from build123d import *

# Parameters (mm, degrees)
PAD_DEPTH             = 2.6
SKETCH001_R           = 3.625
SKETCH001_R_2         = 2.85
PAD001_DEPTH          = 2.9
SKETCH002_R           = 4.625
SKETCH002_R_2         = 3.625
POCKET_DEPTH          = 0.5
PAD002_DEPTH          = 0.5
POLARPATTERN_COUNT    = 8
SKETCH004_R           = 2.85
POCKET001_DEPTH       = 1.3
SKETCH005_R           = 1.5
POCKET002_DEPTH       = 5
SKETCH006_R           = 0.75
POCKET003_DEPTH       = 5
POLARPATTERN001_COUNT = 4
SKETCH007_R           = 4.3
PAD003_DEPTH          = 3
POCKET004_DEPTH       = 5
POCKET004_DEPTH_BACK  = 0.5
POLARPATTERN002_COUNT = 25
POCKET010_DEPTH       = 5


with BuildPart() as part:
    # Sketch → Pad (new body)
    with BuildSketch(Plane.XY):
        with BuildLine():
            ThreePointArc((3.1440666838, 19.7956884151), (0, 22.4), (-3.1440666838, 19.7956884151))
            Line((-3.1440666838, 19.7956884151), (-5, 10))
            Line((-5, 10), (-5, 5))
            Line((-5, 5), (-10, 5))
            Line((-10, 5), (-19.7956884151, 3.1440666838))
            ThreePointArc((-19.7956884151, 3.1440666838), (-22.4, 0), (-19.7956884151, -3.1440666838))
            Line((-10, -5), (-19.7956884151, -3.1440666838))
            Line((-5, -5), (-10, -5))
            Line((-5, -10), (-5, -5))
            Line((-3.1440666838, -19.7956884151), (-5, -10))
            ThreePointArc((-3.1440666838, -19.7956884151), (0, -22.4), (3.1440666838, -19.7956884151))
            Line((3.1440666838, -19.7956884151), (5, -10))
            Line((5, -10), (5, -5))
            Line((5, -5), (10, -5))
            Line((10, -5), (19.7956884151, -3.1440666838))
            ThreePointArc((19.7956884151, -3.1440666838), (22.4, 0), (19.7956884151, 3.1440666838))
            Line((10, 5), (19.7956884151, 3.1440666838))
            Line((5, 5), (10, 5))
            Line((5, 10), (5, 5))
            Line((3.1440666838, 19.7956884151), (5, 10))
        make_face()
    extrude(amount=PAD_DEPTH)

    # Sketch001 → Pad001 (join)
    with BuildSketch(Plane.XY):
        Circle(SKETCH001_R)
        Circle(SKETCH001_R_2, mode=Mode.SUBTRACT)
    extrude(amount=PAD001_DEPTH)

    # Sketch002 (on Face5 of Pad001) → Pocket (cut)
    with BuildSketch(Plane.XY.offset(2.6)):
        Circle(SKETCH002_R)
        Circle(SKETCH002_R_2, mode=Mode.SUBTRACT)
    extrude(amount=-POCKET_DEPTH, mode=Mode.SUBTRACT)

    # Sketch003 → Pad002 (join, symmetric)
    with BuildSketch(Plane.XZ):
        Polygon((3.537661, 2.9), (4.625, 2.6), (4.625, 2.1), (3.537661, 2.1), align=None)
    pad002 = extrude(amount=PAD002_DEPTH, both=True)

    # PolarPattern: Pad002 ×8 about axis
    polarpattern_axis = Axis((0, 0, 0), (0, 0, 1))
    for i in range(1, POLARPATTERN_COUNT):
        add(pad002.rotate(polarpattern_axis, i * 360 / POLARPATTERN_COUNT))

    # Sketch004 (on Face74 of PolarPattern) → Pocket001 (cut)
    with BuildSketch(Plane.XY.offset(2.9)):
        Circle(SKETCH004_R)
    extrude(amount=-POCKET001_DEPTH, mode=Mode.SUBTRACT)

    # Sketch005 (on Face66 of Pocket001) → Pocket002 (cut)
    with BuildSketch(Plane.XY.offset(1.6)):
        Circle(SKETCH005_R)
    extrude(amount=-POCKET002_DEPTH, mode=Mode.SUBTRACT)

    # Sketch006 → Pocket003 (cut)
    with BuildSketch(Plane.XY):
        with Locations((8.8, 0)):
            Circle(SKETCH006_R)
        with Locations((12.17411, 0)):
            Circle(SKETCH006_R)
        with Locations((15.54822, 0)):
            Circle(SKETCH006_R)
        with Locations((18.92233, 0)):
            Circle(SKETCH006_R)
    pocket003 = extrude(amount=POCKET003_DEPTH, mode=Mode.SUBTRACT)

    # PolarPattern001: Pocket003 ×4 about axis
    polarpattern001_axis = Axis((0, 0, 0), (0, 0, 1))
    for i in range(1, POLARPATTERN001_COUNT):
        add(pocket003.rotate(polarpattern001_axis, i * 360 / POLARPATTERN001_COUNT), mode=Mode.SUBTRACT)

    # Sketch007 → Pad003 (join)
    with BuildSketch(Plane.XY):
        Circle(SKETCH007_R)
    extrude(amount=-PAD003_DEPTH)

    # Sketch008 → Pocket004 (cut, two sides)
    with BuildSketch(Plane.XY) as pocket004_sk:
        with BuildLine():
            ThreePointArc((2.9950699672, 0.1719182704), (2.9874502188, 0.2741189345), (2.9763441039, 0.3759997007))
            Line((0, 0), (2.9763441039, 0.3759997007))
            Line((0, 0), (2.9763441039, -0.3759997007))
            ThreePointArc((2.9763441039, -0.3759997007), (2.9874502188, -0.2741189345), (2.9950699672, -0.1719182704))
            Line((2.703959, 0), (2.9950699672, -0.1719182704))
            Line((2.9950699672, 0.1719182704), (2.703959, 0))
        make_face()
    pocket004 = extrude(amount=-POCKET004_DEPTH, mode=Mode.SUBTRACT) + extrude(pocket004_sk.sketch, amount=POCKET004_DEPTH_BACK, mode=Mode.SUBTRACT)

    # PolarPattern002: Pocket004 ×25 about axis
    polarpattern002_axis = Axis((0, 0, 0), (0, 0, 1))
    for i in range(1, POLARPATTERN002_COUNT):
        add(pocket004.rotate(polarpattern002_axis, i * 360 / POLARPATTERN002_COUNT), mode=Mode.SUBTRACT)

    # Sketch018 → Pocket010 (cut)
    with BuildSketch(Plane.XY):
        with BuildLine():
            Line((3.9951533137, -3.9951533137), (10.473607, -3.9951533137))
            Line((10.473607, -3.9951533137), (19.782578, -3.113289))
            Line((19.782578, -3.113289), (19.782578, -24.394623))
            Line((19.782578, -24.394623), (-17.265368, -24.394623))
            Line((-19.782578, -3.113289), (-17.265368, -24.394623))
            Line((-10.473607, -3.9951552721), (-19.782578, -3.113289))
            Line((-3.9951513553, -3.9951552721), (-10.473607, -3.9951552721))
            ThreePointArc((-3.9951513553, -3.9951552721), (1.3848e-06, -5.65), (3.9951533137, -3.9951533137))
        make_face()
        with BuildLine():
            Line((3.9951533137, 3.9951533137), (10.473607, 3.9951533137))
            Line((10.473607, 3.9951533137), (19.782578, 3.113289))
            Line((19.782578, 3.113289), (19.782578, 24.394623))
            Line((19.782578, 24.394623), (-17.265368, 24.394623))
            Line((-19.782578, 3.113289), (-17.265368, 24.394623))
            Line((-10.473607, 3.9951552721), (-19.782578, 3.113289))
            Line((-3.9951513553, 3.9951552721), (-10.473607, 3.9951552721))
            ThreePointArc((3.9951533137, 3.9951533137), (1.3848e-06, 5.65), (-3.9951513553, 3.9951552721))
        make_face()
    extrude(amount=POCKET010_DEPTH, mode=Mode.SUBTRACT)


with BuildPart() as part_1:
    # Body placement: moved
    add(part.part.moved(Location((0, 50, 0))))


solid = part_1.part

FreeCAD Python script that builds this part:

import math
import FreeCAD as App
import Part
import Sketcher
from FreeCAD import Vector
Q = App.Units.Quantity

doc = App.newDocument("Part")
params = doc.addObject("Spreadsheet::Sheet", "Params")
for row, (alias, value) in enumerate([
    ("sketch1_radius", "3.2 mm"),
    ("sketch1_width", "5 mm"),
    ("pad1_length", "2.6 mm"),
    ("sketch2_diameter", "5.7 mm"),
    ("sketch2_diameter2", "7.25 mm"),
    ("pad2_length", "2.9 mm"),
    ("sketch3_diameter", "9.25 mm"),
    ("sketch3_diameter2", "7.25 mm"),
    ("pocket1_length", "0.5 mm"),
    ("sketch4_height", "0.8 mm"),
    ("sketch4_height2", "0.5 mm"),
    ("pad3_length", "1 mm"),
    ("sketch5_diameter", "5.7 mm"),
    ("pocket2_length", "1.3 mm"),
    ("sketch6_diameter", "3 mm"),
    ("pocket3_length", "5 mm"),
    ("sketch7_diameter", "1.5 mm"),
    ("pocket4_length", "5 mm"),
    ("sketch8_diameter", "8.6 mm"),
    ("pad4_length", "3 mm"),
    ("sketch9_radius", "3 mm"),
    ("pocket5_length", "5 mm"),
    ("pocket5_length2", "0.5 mm"),
    ("sketch10_radius", "5.65 mm"),
    ("pocket6_length", "5 mm"),
], start=1):
    params.set(f"A{row}", alias)
    params.set(f"B{row}", "=" + value)
    params.setAlias(f"B{row}", alias)

body = doc.addObject("PartDesign::Body", "Body")

# Sketch on XY plane
sketch1 = body.newObject("Sketcher::SketchObject", "Sketch")
sketch1.AttachmentSupport = (doc.getObject("XY_Plane"), [""])
sketch1.MapMode = "FlatFace"
sketch1.addGeometry([
    Part.ArcOfCircle(Part.Circle(Vector(0, 19.2, 0), Vector(0, 0, 1), 3.2), math.radians(10.728341), math.radians(169.271659)),  # 0
    Part.LineSegment(Vector(-3.144067, 19.795688, 0), Vector(-5, 10, 0)),  # 1
    Part.LineSegment(Vector(-5, 10, 0), Vector(-5, 5, 0)),  # 2
    Part.LineSegment(Vector(-5, 5, 0), Vector(-10, 5, 0)),  # 3
    Part.LineSegment(Vector(-10, 5, 0), Vector(-19.795688, 3.144067, 0)),  # 4
    Part.ArcOfCircle(Part.Circle(Vector(-19.2, 0, 0), Vector(0, 0, 1), 3.2), math.radians(100.728341), math.radians(259.271659)),  # 5
    Part.LineSegment(Vector(-19.795688, -3.144067, 0), Vector(-10, -5, 0)),  # 6
    Part.LineSegment(Vector(-10, -5, 0), Vector(-5, -5, 0)),  # 7
    Part.LineSegment(Vector(-5, -5, 0), Vector(-5, -10, 0)),  # 8
    Part.LineSegment(Vector(-5, -10, 0), Vector(-3.144067, -19.795688, 0)),  # 9
    Part.ArcOfCircle(Part.Circle(Vector(0, -19.2, 0), Vector(0, 0, 1), 3.2), math.radians(-169.271659), math.radians(-10.728341)),  # 10
    Part.LineSegment(Vector(3.144067, -19.795688, 0), Vector(5, -10, 0)),  # 11
    Part.LineSegment(Vector(5, -10, 0), Vector(5, -5, 0)),  # 12
    Part.LineSegment(Vector(5, -5, 0), Vector(10, -5, 0)),  # 13
    Part.LineSegment(Vector(10, -5, 0), Vector(19.795688, -3.144067, 0)),  # 14
    Part.ArcOfCircle(Part.Circle(Vector(19.2, 0, 0), Vector(0, 0, 1), 3.2), math.radians(-79.271659), math.radians(79.271659)),  # 15
    Part.LineSegment(Vector(19.795688, 3.144067, 0), Vector(10, 5, 0)),  # 16
    Part.LineSegment(Vector(10, 5, 0), Vector(5, 5, 0)),  # 17
    Part.LineSegment(Vector(5, 5, 0), Vector(5, 10, 0)),  # 18
    Part.LineSegment(Vector(5, 10, 0), Vector(3.144067, 19.795688, 0)),  # 19
], False)
sketch1.addConstraint([
    Sketcher.Constraint("Tangent", 0, 2, 1, 1),
    Sketcher.Constraint("Coincident", 1, 2, 2, 1),
    Sketcher.Constraint("Coincident", 2, 2, 3, 1),
    Sketcher.Constraint("Coincident", 3, 2, 4, 1),
    Sketcher.Constraint("Tangent", 4, 2, 5, 1),
    Sketcher.Constraint("Tangent", 5, 2, 6, 1),
    Sketcher.Constraint("Coincident", 6, 2, 7, 1),
    Sketcher.Constraint("Coincident", 7, 2, 8, 1),
    Sketcher.Constraint("Coincident", 8, 2, 9, 1),
    Sketcher.Constraint("Tangent", 9, 2, 10, 1),
    Sketcher.Constraint("Tangent", 10, 2, 11, 1),
    Sketcher.Constraint("Coincident", 11, 2, 12, 1),
    Sketcher.Constraint("Coincident", 12, 2, 13, 1),
    Sketcher.Constraint("Coincident", 13, 2, 14, 1),
    Sketcher.Constraint("Tangent", 14, 2, 15, 1),
    Sketcher.Constraint("Tangent", 15, 2, 16, 1),
    Sketcher.Constraint("Coincident", 16, 2, 17, 1),
    Sketcher.Constraint("Coincident", 17, 2, 18, 1),
    Sketcher.Constraint("Coincident", 18, 2, 19, 1),
    Sketcher.Constraint("Tangent", 19, 2, 0, 1),
    Sketcher.Constraint("Vertical", 2),
    Sketcher.Constraint("Horizontal", 3),
    Sketcher.Constraint("Horizontal", 7),
    Sketcher.Constraint("Vertical", 8),
    Sketcher.Constraint("Vertical", 12),
    Sketcher.Constraint("Horizontal", 13),
    Sketcher.Constraint("Horizontal", 17),
    Sketcher.Constraint("Vertical", 18),
    Sketcher.Constraint("Equal", 0, 5),
    Sketcher.Constraint("Equal", 5, 10),
    Sketcher.Constraint("Equal", 10, 15),
    Sketcher.Constraint("Symmetric", 0, 3, 10, 3, -1, 1),
    Sketcher.Constraint("Symmetric", 5, 3, 15, 3, -1, 1),
    Sketcher.Constraint("Symmetric", 1, 2, 11, 2, -1, 1),
    Sketcher.Constraint("Symmetric", 3, 2, 13, 2, -1, 1),
    Sketcher.Constraint("Symmetric", 6, 2, 16, 2, -1, 1),
    Sketcher.Constraint("Symmetric", 8, 2, 18, 2, -1, 1),
    Sketcher.Constraint("Symmetric", 9, 2, 10, 2, -2),
    Sketcher.Constraint("Symmetric", 7, 2, 12, 2, -2),
    Sketcher.Constraint("Symmetric", 5, 2, 14, 2, -2),
    Sketcher.Constraint("Perpendicular", 1, 6),
    Sketcher.Constraint("Equal", 17, 2),
    Sketcher.Constraint("Equal", 1, 4),
    Sketcher.Constraint("Radius", 0, Q("3.2 mm")),
    Sketcher.Constraint("DistanceX", 3, 2, 3, 1, Q("5 mm")),
    Sketcher.Constraint("DistanceX", 1, 2, -1, 1, Q("5 mm")),
    Sketcher.Constraint("DistanceY", -1, 1, 0, 3, Q("19.2 mm")),
])
sketch1.setExpression("Constraints[43]", "Params.sketch1_radius")
sketch1.setExpression("Constraints[44]", "Params.sketch1_width")
pad1 = body.newObject("PartDesign::Pad", "Pad")
pad1.Profile = sketch1
pad1.setExpression("Length", "Params.pad1_length")

# Sketch on XY plane
sketch2 = body.newObject("Sketcher::SketchObject", "Sketch001")
sketch2.AttachmentSupport = (doc.getObject("XY_Plane"), [""])
sketch2.MapMode = "FlatFace"
sketch2.addGeometry([
    Part.Circle(Vector(0, 0, 0), Vector(0, 0, 1), 3.625),
    Part.Circle(Vector(0, 0, 0), Vector(0, 0, 1), 2.85),
], False)
sketch2.addConstraint([
    Sketcher.Constraint("Coincident", 0, 3, -1, 1),
    Sketcher.Constraint("Coincident", 1, 3, -1, 1),
    Sketcher.Constraint("Diameter", 1, Q("5.7 mm")),
    Sketcher.Constraint("Diameter", 0, Q("7.25 mm")),
])
sketch2.setExpression("Constraints[2]", "Params.sketch2_diameter")
sketch2.setExpression("Constraints[3]", "Params.sketch2_diameter2")
pad2 = body.newObject("PartDesign::Pad", "Pad001")
pad2.Profile = sketch2
pad2.setExpression("Length", "Params.pad2_length")

# Sketch on XY plane
sketch3 = body.newObject("Sketcher::SketchObject", "Sketch002")
sketch3.AttachmentSupport = (doc.getObject("XY_Plane"), [""])
sketch3.MapMode = "FlatFace"
sketch3.AttachmentOffset = App.Placement(Vector(0, 0, 2.6), App.Rotation())
sketch3.addGeometry([
    Part.Circle(Vector(0, 0, 0), Vector(0, 0, 1), 4.625),
    Part.Circle(Vector(0, 0, 0), Vector(0, 0, 1), 3.625),
], False)
sketch3.addConstraint([
    Sketcher.Constraint("Coincident", 0, 3, -1, 1),
    Sketcher.Constraint("Coincident", 1, 3, -1, 1),
    Sketcher.Constraint("Diameter", 0, Q("9.25 mm")),
    Sketcher.Constraint("Diameter", 1, Q("7.25 mm")),
])
sketch3.setExpression("Constraints[2]", "Params.sketch3_diameter")
sketch3.setExpression("Constraints[3]", "Params.sketch3_diameter2")
pocket1 = body.newObject("PartDesign::Pocket", "Pocket")
pocket1.Profile = sketch3
pocket1.setExpression("Length", "Params.pocket1_length")

# Sketch on XZ plane
sketch4 = body.newObject("Sketcher::SketchObject", "Sketch003")
sketch4.AttachmentSupport = (doc.getObject("XZ_Plane"), [""])
sketch4.MapMode = "FlatFace"
sketch4.addGeometry([
    Part.LineSegment(Vector(4.625, 2.6, 0), Vector(3.537661, 2.9, 0)),
    Part.LineSegment(Vector(3.537661, 2.9, 0), Vector(3.537661, 2.1, 0)),
    Part.LineSegment(Vector(3.537661, 2.1, 0), Vector(4.625, 2.1, 0)),
    Part.LineSegment(Vector(4.625, 2.1, 0), Vector(4.625, 2.6, 0)),
], False)
sketch4.addConstraint([
    Sketcher.Constraint("Coincident", 0, 2, 1, 1),
    Sketcher.Constraint("Coincident", 1, 2, 2, 1),
    Sketcher.Constraint("Coincident", 2, 2, 3, 1),
    Sketcher.Constraint("Coincident", 3, 2, 0, 1),
    Sketcher.Constraint("Vertical", 1),
    Sketcher.Constraint("Horizontal", 2),
    Sketcher.Constraint("Vertical", 3),
    Sketcher.Constraint("DistanceY", 1, 2, 1, 1, Q("0.8 mm")),
    Sketcher.Constraint("DistanceY", 3, 1, 3, 2, Q("0.5 mm")),
    Sketcher.Constraint("DistanceY", -1, 1, 0, 2, Q("2.9 mm")),
    Sketcher.Constraint("DistanceX", -1, 1, 2, 2, Q("4.625 mm")),
    Sketcher.Constraint("DistanceX", 2, 1, 2, 2, Q("1.087339 mm")),
])
sketch4.setExpression("Constraints[7]", "Params.sketch4_height")
sketch4.setExpression("Constraints[8]", "Params.sketch4_height2")
pad3 = body.newObject("PartDesign::Pad", "Pad002")
pad3.Profile = sketch4
pad3.setExpression("Length", "Params.pad3_length")
pad3.Midplane = True
doc.recompute()

polarpattern = body.newObject("PartDesign::PolarPattern", "PolarPattern")
polarpattern.Originals = [pad3]
polarpattern.Axis = (doc.getObject("Z_Axis"), [""])
polarpattern.Angle = 360
polarpattern.Occurrences = 8
body.Tip = polarpattern

# Sketch on XY plane
sketch5 = body.newObject("Sketcher::SketchObject", "Sketch004")
sketch5.AttachmentSupport = (doc.getObject("XY_Plane"), [""])
sketch5.MapMode = "FlatFace"
sketch5.AttachmentOffset = App.Placement(Vector(0, 0, 2.9), App.Rotation())
sketch5.addGeometry(Part.Circle(Vector(0, 0, 0), Vector(0, 0, 1), 2.85), False)
sketch5.addConstraint([
    Sketcher.Constraint("Coincident", 0, 3, -1, 1),
    Sketcher.Constraint("Diameter", 0, Q("5.7 mm")),
])
sketch5.setExpression("Constraints[1]", "Params.sketch5_diameter")
pocket2 = body.newObject("PartDesign::Pocket", "Pocket001")
pocket2.Profile = sketch5
pocket2.setExpression("Length", "Params.pocket2_length")

# Sketch on XY plane
sketch6 = body.newObject("Sketcher::SketchObject", "Sketch005")
sketch6.AttachmentSupport = (doc.getObject("XY_Plane"), [""])
sketch6.MapMode = "FlatFace"
sketch6.AttachmentOffset = App.Placement(Vector(0, 0, 1.6), App.Rotation())
sketch6.addGeometry(Part.Circle(Vector(0, 0, 0), Vector(0, 0, 1), 1.5), False)
sketch6.addConstraint([
    Sketcher.Constraint("Coincident", 0, 3, -1, 1),
    Sketcher.Constraint("Diameter", 0, Q("3 mm")),
])
sketch6.setExpression("Constraints[1]", "Params.sketch6_diameter")
pocket3 = body.newObject("PartDesign::Pocket", "Pocket002")
pocket3.Profile = sketch6
pocket3.setExpression("Length", "Params.pocket3_length")

# Sketch on XY plane
sketch7 = body.newObject("Sketcher::SketchObject", "Sketch006")
sketch7.AttachmentSupport = (doc.getObject("XY_Plane"), [""])
sketch7.MapMode = "FlatFace"
sketch7.addGeometry([
    Part.Circle(Vector(8.8, 0, 0), Vector(0, 0, 1), 0.75),
    Part.Circle(Vector(12.17411, 0, 0), Vector(0, 0, 1), 0.75),
    Part.Circle(Vector(15.54822, 0, 0), Vector(0, 0, 1), 0.75),
    Part.Circle(Vector(18.92233, 0, 0), Vector(0, 0, 1), 0.75),
], False)
sketch7.addConstraint([
    Sketcher.Constraint("Equal", 0, 1),
    Sketcher.Constraint("Equal", 1, 2),
    Sketcher.Constraint("Equal", 2, 3),
    Sketcher.Constraint("PointOnObject", 0, 3, -1),
    Sketcher.Constraint("PointOnObject", 1, 3, -1),
    Sketcher.Constraint("PointOnObject", 2, 3, -1),
    Sketcher.Constraint("PointOnObject", 3, 3, -1),
    Sketcher.Constraint("Diameter", 0, Q("1.5 mm")),
    Sketcher.Constraint("DistanceX", -1, 1, 0, 3, Q("8.8 mm")),
    Sketcher.Constraint("DistanceX", -1, 1, 1, 3, Q("12.17411 mm")),
    Sketcher.Constraint("DistanceX", -1, 1, 2, 3, Q("15.54822 mm")),
    Sketcher.Constraint("DistanceX", -1, 1, 3, 3, Q("18.92233 mm")),
])
sketch7.setExpression("Constraints[7]", "Params.sketch7_diameter")
pocket4 = body.newObject("PartDesign::Pocket", "Pocket003")
pocket4.Profile = sketch7
pocket4.setExpression("Length", "Params.pocket4_length")
pocket4.Reversed = True
doc.recompute()

polarpattern2 = body.newObject("PartDesign::PolarPattern", "PolarPattern001")
polarpattern2.Originals = [pocket4]
polarpattern2.Axis = (doc.getObject("Z_Axis"), [""])
polarpattern2.Angle = 360
polarpattern2.Occurrences = 4
body.Tip = polarpattern2

# Sketch on XY plane
sketch8 = body.newObject("Sketcher::SketchObject", "Sketch007")
sketch8.AttachmentSupport = (doc.getObject("XY_Plane"), [""])
sketch8.MapMode = "FlatFace"
sketch8.addGeometry(Part.Circle(Vector(0, 0, 0), Vector(0, 0, 1), 4.3), False)
sketch8.addConstraint([
    Sketcher.Constraint("Coincident", 0, 3, -1, 1),
    Sketcher.Constraint("Diameter", 0, Q("8.6 mm")),
])
sketch8.setExpression("Constraints[1]", "Params.sketch8_diameter")
pad4 = body.newObject("PartDesign::Pad", "Pad003")
pad4.Profile = sketch8
pad4.setExpression("Length", "Params.pad4_length")
pad4.Reversed = True

# Sketch on XY plane
sketch9 = body.newObject("Sketcher::SketchObject", "Sketch008")
sketch9.AttachmentSupport = (doc.getObject("XY_Plane"), [""])
sketch9.MapMode = "FlatFace"
sketch9.addGeometry([
    Part.ArcOfCircle(Part.Circle(Vector(0, 0, 0), Vector(0, 0, 1), 3), math.radians(3.285197), math.radians(7.2)),  # 0
    Part.LineSegment(Vector(2.976344, 0.376, 0), Vector(0, 0, 0)),  # 1
    Part.LineSegment(Vector(0, 0, 0), Vector(2.976344, -0.376, 0)),  # 2
    Part.ArcOfCircle(Part.Circle(Vector(0, 0, 0), Vector(0, 0, 1), 3), math.radians(-7.2), math.radians(-3.285197)),  # 3
    Part.LineSegment(Vector(2.99507, -0.171918, 0), Vector(2.703959, 0, 0)),  # 4
    Part.LineSegment(Vector(2.703959, 0, 0), Vector(2.99507, 0.171918, 0)),  # 5
], False)
sketch9.addConstraint([
    Sketcher.Constraint("Coincident", 0, 2, 1, 1),
    Sketcher.Constraint("Coincident", 1, 2, 2, 1),
    Sketcher.Constraint("Coincident", 2, 2, 3, 1),
    Sketcher.Constraint("Coincident", 3, 2, 4, 1),
    Sketcher.Constraint("Coincident", 4, 2, 5, 1),
    Sketcher.Constraint("Coincident", 5, 2, 0, 1),
    Sketcher.Constraint("Coincident", 0, 3, -1, 1),
    Sketcher.Constraint("Coincident", 3, 3, -1, 1),
    Sketcher.Constraint("Coincident", 1, 2, -1, 1),
    Sketcher.Constraint("Equal", 0, 3),
    Sketcher.Constraint("PointOnObject", 4, 2, -1),
    Sketcher.Constraint("Vertical", 0, 2, 2, 2),
    Sketcher.Constraint("Vertical", 3, 2, 5, 2),
    Sketcher.Constraint("Radius", 0, Q("3 mm")),
    Sketcher.Constraint("Angle", 1, Q("-172.8 deg")),
    Sketcher.Constraint("DistanceX", -1, 1, 3, 2, Q("2.99507 mm")),
    Sketcher.Constraint("DistanceX", -1, 1, 4, 2, Q("2.703959 mm")),
])
sketch9.setExpression("Constraints[13]", "Params.sketch9_radius")
pocket5 = body.newObject("PartDesign::Pocket", "Pocket004")
pocket5.Profile = sketch9
pocket5.Type = "TwoLengths"
pocket5.setExpression("Length", "Params.pocket5_length")
pocket5.setExpression("Length2", "Params.pocket5_length2")
doc.recompute()

polarpattern3 = body.newObject("PartDesign::PolarPattern", "PolarPattern002")
polarpattern3.Originals = [pocket5]
polarpattern3.Axis = (doc.getObject("Z_Axis"), [""])
polarpattern3.Angle = 360
polarpattern3.Occurrences = 25
body.Tip = polarpattern3

# Sketch on XY plane
sketch10 = body.newObject("Sketcher::SketchObject", "Sketch009")
sketch10.AttachmentSupport = (doc.getObject("XY_Plane"), [""])
sketch10.MapMode = "FlatFace"
sketch10.addGeometry([
    Part.LineSegment(Vector(10.473607, -3.995153, 0), Vector(3.995153, -3.995153, 0)),  # 0
    Part.ArcOfCircle(Part.Circle(Vector(0, 0, 0), Vector(0, 0, 1), 5.65), math.radians(-134.999972), math.radians(-45)),  # 1
    Part.LineSegment(Vector(-3.995151, -3.995155, 0), Vector(-10.473607, -3.995155, 0)),  # 2
    Part.LineSegment(Vector(-10.473607, -3.995155, 0), Vector(-19.782578, -3.113289, 0)),  # 3
    Part.LineSegment(Vector(-19.782578, -3.113289, 0), Vector(-17.265368, -24.394623, 0)),  # 4
    Part.LineSegment(Vector(-17.265368, -24.394623, 0), Vector(19.782578, -24.394623, 0)),  # 5
    Part.LineSegment(Vector(19.782578, -24.394623, 0), Vector(19.782578, -3.113289, 0)),  # 6
    Part.LineSegment(Vector(19.782578, -3.113289, 0), Vector(10.473607, -3.995153, 0)),  # 7
    Part.LineSegment(Vector(3.995153, 3.995153, 0), Vector(10.473607, 3.995153, 0)),  # 8
    Part.LineSegment(Vector(10.473607, 3.995153, 0), Vector(19.782578, 3.113289, 0)),  # 9
    Part.LineSegment(Vector(19.782578, 3.113289, 0), Vector(19.782578, 24.394623, 0)),  # 10
    Part.LineSegment(Vector(19.782578, 24.394623, 0), Vector(-17.265368, 24.394623, 0)),  # 11
    Part.LineSegment(Vector(-17.265368, 24.394623, 0), Vector(-19.782578, 3.113289, 0)),  # 12
    Part.LineSegment(Vector(-19.782578, 3.113289, 0), Vector(-10.473607, 3.995155, 0)),  # 13
    Part.LineSegment(Vector(-10.473607, 3.995155, 0), Vector(-3.995151, 3.995155, 0)),  # 14
    Part.ArcOfCircle(Part.Circle(Vector(0, 0, 0), Vector(0, 0, 1), 5.65), math.radians(45), math.radians(134.999972)),  # 15
], False)
sketch10.addConstraint([
    Sketcher.Constraint("Coincident", 0, 2, 1, 2),
    Sketcher.Constraint("Coincident", 1, 1, 2, 1),
    Sketcher.Constraint("Coincident", 2, 2, 3, 1),
    Sketcher.Constraint("Coincident", 3, 2, 4, 1),
    Sketcher.Constraint("Coincident", 4, 2, 5, 1),
    Sketcher.Constraint("Coincident", 5, 2, 6, 1),
    Sketcher.Constraint("Coincident", 6, 2, 7, 1),
    Sketcher.Constraint("Coincident", 7, 2, 0, 1),
    Sketcher.Constraint("Coincident", 8, 2, 9, 1),
    Sketcher.Constraint("Coincident", 9, 2, 10, 1),
    Sketcher.Constraint("Coincident", 10, 2, 11, 1),
    Sketcher.Constraint("Coincident", 11, 2, 12, 1),
    Sketcher.Constraint("Coincident", 12, 2, 13, 1),
    Sketcher.Constraint("Coincident", 13, 2, 14, 1),
    Sketcher.Constraint("Coincident", 14, 2, 15, 2),
    Sketcher.Constraint("Coincident", 15, 1, 8, 1),
    Sketcher.Constraint("Horizontal", 0),
    Sketcher.Constraint("Horizontal", 2),
    Sketcher.Constraint("Horizontal", 5),
    Sketcher.Constraint("Vertical", 6),
    Sketcher.Constraint("Horizontal", 8),
    Sketcher.Constraint("Vertical", 10),
    Sketcher.Constraint("Horizontal", 11),
    Sketcher.Constraint("Horizontal", 14),
    Sketcher.Constraint("Coincident", 1, 3, -1, 1),
    Sketcher.Constraint("Coincident", 15, 3, -1, 1),
    Sketcher.Constraint("Equal", 1, 15),
    Sketcher.Constraint("Symmetric", 2, 2, 8, 2, -1, 1),
    Sketcher.Constraint("Symmetric", 3, 2, 9, 2, -1, 1),
    Sketcher.Constraint("Symmetric", 6, 2, 12, 2, -1, 1),
    Sketcher.Constraint("Symmetric", 7, 2, 13, 2, -1, 1),
    Sketcher.Constraint("Symmetric", 3, 2, 6, 2, -2),
    Sketcher.Constraint("Symmetric", 2, 2, 7, 2, -2),
    Sketcher.Constraint("Symmetric", 4, 2, 11, 2, -1),
    Sketcher.Constraint("Radius", 1, Q("5.65 mm")),
    Sketcher.Constraint("Distance", 3, Q("9.350649 mm")),
    Sketcher.Constraint("DistanceX", 0, 2, 0, 1, Q("6.478454 mm")),
    Sketcher.Constraint("DistanceX", 5, 1, 5, 2, Q("37.047946 mm")),
    Sketcher.Constraint("DistanceY", 6, 1, 6, 2, Q("21.281334 mm")),
    Sketcher.Constraint("DistanceX", 1, 1, -1, 1, Q("3.995151 mm")),
    Sketcher.Constraint("DistanceX", 3, 2, -1, 1, Q("19.782578 mm")),
])
sketch10.setExpression("Constraints[34]", "Params.sketch10_radius")
pocket6 = body.newObject("PartDesign::Pocket", "Pocket005")
pocket6.Profile = sketch10
pocket6.setExpression("Length", "Params.pocket6_length")
pocket6.Reversed = True
body2 = doc.addObject("PartDesign::Body", "Body001")
doc.recompute()

body.Placement = App.Placement(Vector(0, 50, 0), App.Rotation(Vector(0, 0, 1), 0))
boolean = body2.newObject("PartDesign::Boolean", "Boolean")
boolean.Type = "Fuse"
boolean.addObjects([body])

doc.recompute()
